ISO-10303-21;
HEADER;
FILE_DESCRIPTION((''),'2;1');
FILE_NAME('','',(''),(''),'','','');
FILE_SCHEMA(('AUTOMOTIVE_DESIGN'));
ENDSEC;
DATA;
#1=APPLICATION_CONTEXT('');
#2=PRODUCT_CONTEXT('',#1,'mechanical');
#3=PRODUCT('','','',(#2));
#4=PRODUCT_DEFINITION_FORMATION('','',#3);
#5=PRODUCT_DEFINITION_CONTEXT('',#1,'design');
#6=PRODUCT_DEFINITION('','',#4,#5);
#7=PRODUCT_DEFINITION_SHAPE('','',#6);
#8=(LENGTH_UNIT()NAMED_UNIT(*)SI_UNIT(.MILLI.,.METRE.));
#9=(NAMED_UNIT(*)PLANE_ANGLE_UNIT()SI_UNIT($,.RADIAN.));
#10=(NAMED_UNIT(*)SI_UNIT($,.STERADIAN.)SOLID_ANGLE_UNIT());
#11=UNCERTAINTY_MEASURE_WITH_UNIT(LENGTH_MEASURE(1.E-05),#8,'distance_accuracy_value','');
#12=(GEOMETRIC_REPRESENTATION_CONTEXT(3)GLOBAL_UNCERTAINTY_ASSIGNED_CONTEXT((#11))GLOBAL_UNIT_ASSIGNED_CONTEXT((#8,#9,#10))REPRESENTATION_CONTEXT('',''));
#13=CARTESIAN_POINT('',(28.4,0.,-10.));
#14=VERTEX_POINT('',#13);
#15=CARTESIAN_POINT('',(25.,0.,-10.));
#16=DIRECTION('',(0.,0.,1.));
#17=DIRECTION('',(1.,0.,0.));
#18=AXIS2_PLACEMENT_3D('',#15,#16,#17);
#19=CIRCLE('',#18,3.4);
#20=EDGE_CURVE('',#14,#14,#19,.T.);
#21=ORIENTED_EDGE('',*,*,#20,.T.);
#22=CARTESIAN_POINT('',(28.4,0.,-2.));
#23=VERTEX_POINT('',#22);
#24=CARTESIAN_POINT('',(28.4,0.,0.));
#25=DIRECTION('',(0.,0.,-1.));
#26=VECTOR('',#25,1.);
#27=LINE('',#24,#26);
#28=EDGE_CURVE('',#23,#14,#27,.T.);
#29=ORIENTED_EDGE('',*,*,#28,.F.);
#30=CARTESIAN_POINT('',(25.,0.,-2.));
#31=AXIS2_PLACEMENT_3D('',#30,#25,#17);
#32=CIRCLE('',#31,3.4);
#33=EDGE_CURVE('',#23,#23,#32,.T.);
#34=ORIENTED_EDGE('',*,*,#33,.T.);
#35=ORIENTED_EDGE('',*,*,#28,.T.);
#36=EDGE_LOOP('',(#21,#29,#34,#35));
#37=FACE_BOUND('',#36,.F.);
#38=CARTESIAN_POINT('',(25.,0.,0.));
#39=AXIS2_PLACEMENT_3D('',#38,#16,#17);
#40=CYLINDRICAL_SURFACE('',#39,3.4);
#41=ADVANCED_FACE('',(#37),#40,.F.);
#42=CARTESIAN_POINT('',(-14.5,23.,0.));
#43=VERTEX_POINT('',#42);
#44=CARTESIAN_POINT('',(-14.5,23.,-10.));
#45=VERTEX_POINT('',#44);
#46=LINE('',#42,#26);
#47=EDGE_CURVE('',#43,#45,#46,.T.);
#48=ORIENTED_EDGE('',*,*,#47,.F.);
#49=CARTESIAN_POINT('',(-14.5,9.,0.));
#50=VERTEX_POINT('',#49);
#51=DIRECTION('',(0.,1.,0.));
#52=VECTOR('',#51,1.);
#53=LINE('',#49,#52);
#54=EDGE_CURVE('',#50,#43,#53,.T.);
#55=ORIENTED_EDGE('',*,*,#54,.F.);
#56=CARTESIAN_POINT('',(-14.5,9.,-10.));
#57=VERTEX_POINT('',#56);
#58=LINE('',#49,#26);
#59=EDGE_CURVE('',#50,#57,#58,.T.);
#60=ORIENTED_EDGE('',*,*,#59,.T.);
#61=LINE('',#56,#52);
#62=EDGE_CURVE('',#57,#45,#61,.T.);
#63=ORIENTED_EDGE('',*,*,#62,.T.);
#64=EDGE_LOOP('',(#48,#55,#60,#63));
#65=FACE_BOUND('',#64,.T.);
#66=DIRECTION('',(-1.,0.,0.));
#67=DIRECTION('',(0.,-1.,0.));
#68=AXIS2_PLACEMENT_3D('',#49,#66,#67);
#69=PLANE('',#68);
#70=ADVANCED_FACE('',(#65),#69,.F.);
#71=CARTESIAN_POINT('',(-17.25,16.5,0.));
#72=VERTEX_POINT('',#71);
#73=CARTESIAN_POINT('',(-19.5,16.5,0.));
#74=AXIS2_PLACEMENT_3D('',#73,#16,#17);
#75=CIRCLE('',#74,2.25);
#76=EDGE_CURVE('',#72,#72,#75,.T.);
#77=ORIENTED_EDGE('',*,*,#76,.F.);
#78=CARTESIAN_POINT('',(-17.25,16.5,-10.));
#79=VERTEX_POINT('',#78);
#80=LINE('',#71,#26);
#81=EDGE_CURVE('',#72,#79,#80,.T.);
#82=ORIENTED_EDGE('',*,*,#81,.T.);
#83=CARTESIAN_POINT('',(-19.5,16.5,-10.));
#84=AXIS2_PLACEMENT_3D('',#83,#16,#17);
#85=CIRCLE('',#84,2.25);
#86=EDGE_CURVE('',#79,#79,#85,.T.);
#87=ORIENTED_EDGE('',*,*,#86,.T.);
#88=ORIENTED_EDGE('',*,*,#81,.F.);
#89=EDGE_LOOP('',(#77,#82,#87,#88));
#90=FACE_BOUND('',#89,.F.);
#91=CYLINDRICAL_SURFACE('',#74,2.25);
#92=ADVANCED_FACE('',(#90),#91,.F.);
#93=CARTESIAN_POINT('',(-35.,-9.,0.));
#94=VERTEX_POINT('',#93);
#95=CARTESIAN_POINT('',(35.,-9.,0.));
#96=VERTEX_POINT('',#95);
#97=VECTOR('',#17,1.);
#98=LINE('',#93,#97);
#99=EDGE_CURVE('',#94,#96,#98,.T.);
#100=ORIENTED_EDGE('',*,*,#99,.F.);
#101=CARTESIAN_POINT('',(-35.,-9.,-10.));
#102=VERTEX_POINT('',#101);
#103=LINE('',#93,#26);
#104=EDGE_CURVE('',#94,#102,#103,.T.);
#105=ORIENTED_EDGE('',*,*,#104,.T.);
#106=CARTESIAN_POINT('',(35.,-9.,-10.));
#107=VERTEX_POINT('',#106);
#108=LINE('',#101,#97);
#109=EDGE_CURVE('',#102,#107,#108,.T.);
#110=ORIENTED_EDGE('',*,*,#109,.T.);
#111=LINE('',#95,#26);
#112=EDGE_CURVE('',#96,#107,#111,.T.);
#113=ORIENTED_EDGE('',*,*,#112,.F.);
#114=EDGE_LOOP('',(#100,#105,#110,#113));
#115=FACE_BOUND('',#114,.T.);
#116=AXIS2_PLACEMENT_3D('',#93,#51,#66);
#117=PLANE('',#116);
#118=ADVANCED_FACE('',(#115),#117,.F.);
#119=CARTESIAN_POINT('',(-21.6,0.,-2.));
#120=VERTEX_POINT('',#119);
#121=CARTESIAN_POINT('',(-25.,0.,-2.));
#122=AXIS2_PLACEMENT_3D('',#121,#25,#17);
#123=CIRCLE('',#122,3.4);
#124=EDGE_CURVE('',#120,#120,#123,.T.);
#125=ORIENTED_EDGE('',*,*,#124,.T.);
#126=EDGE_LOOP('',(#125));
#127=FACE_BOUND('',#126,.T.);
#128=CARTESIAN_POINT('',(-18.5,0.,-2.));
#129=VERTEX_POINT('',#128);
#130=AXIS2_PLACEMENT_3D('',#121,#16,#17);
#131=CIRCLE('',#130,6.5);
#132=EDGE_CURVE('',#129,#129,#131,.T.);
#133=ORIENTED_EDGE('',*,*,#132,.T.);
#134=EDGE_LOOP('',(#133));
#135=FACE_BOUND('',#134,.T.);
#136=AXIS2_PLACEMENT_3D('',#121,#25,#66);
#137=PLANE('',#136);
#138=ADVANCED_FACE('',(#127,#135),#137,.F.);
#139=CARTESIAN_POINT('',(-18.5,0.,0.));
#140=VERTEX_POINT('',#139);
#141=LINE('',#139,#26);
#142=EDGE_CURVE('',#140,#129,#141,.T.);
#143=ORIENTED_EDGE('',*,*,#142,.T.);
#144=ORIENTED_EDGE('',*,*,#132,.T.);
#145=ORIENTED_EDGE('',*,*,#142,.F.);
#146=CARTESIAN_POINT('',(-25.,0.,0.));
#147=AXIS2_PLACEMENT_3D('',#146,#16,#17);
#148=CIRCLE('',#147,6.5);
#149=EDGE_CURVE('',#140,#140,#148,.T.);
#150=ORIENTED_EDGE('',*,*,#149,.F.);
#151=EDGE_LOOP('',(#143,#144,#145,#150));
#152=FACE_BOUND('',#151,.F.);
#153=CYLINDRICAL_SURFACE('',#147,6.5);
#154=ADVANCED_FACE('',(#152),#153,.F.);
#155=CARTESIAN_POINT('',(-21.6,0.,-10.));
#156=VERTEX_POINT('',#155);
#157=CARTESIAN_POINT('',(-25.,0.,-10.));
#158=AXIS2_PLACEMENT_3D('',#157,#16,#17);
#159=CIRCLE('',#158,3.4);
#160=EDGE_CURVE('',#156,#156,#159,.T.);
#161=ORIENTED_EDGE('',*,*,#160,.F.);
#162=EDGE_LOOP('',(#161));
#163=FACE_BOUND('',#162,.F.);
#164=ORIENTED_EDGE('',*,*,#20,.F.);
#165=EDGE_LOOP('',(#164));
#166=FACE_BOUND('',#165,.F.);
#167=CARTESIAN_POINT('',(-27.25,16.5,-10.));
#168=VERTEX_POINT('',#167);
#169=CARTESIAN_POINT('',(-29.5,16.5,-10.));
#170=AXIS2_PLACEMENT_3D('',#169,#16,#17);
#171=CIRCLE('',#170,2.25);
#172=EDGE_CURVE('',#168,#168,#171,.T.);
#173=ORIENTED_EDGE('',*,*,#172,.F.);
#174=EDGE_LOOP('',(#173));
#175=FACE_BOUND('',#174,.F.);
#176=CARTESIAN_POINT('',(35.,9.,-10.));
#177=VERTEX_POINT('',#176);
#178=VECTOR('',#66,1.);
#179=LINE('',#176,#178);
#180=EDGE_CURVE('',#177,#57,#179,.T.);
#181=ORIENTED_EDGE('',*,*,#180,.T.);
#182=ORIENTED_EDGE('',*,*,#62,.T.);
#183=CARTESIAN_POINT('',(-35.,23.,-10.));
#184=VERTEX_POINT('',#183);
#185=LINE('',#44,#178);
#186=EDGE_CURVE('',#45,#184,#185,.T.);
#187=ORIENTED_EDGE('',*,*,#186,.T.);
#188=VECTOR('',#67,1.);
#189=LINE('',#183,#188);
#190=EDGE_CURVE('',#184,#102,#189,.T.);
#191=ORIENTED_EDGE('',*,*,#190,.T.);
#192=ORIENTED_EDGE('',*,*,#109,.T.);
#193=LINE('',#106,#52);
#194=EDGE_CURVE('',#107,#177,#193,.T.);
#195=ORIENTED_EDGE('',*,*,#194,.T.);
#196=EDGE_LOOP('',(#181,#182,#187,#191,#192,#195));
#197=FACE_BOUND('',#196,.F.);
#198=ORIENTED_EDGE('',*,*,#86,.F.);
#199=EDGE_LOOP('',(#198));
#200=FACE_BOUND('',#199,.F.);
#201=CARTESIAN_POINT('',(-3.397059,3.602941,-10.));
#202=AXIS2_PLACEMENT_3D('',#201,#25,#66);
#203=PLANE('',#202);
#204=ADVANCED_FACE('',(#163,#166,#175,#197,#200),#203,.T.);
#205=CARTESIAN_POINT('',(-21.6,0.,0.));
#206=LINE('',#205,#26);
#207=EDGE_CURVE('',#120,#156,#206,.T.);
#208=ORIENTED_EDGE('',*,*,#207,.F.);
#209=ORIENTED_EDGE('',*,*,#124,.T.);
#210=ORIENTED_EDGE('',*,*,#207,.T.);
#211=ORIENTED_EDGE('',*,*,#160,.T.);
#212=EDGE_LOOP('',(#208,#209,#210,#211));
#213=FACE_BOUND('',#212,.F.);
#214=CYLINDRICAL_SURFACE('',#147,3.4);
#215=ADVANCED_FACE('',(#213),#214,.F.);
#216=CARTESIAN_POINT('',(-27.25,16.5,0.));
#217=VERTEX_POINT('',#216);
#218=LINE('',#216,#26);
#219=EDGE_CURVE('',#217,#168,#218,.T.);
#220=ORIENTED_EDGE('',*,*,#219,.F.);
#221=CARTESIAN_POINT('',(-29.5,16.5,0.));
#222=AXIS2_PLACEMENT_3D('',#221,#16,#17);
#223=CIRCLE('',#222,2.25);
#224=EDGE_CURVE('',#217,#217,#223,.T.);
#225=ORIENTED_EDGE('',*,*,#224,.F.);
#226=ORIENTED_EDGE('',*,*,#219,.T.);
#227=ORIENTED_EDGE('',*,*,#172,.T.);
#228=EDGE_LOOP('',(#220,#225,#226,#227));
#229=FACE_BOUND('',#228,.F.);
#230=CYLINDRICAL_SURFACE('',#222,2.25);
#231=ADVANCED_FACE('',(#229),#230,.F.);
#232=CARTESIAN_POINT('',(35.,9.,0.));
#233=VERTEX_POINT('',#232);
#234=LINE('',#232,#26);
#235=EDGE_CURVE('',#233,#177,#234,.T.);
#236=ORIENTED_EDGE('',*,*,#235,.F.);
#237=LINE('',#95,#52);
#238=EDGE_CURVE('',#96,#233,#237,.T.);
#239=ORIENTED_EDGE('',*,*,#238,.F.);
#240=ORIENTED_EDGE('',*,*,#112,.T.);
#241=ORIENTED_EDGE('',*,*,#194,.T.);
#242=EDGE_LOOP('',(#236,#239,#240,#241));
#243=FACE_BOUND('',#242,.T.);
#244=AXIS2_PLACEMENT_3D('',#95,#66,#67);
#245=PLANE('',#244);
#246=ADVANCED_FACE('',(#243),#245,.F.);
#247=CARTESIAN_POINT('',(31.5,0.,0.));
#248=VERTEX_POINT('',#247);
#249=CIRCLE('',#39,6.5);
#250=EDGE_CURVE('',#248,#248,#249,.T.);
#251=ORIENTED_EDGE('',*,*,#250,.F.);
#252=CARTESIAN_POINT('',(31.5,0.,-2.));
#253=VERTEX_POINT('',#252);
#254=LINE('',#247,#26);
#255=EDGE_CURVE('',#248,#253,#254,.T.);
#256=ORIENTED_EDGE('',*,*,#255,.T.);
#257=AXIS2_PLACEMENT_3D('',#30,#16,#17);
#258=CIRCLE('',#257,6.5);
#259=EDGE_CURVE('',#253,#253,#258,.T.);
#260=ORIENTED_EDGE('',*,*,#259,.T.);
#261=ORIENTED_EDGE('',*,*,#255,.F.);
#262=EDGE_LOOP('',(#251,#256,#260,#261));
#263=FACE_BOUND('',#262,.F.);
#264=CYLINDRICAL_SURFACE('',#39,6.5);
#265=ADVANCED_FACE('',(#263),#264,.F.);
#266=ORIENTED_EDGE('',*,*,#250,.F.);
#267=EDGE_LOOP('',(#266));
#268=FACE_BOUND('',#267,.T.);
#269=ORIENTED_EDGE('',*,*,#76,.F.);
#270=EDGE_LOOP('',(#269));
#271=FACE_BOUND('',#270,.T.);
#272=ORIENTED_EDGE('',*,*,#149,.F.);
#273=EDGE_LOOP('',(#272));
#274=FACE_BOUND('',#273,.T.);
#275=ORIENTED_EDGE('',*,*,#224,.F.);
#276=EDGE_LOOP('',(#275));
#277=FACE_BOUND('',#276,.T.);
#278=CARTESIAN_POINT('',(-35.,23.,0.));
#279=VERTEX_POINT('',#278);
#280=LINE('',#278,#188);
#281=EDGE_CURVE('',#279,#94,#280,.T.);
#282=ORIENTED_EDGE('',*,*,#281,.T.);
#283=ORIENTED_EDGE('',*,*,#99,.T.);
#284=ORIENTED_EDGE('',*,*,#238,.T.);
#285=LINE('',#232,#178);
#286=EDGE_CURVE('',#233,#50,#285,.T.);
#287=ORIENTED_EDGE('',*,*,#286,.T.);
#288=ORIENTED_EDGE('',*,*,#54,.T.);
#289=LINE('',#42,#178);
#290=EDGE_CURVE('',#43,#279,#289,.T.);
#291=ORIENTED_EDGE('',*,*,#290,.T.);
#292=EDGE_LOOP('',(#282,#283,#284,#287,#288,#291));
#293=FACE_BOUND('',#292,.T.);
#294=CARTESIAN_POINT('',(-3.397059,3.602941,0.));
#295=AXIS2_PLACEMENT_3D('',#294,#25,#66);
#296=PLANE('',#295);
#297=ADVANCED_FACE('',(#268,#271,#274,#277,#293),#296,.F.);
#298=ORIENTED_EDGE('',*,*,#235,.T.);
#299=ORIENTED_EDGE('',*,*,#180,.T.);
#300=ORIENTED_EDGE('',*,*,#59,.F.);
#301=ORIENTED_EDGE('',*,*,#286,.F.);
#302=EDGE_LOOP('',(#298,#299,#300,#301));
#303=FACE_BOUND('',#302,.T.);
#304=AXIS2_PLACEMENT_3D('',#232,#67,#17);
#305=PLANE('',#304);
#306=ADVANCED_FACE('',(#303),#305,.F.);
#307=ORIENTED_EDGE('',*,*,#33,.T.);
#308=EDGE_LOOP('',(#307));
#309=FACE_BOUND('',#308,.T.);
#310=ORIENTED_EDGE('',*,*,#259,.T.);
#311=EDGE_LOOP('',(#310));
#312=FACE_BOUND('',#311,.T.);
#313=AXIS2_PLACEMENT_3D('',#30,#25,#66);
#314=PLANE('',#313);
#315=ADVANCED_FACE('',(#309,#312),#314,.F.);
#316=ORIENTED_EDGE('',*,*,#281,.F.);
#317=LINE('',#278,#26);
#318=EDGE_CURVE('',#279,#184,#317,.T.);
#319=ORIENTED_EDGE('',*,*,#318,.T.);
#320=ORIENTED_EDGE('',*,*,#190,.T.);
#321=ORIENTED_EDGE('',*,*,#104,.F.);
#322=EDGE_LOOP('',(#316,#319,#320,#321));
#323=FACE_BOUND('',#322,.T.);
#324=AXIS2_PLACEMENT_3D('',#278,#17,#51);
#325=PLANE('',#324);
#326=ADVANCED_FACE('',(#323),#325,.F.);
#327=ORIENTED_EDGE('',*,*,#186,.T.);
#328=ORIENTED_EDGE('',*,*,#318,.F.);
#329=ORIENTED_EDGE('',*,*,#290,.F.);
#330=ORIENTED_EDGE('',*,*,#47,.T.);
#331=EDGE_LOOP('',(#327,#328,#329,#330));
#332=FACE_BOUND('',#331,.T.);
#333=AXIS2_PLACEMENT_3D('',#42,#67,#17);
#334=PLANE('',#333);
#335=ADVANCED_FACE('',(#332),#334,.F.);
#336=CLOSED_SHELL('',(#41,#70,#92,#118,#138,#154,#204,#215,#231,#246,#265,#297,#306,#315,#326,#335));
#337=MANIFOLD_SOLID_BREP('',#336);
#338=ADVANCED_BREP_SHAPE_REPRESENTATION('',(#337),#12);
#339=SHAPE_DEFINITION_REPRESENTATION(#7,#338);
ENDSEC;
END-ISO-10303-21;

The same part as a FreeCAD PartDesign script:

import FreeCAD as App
import Part
import Sketcher

V = App.Vector
Q = App.Units.Quantity


def add_polygon(sketch, points):
    """Adds a closed chain of lines whose ends are joined by coincident constraints."""
    first, n = sketch.GeometryCount, len(points)
    for a, b in zip(points, points[1:] + points[:1]):
        sketch.addGeometry(Part.LineSegment(App.Vector(*a, 0), App.Vector(*b, 0)), False)
    for i in range(n):
        sketch.addConstraint(Sketcher.Constraint("Coincident", first + i, 2, first + (i + 1) % n, 1))

doc = App.newDocument("Part")
body = doc.addObject("PartDesign::Body", "Body")

# Sketch on XY plane
sketch1 = doc.addObject("Sketcher::SketchObject", "Sketch")
body.addObject(sketch1)
sketch1.AttachmentSupport = (doc.XY_Plane, [""])
sketch1.MapMode = "FlatFace"
add_polygon(sketch1, [(-35, 23), (-35, -9), (35, -9), (35, 9), (-14.5, 9), (-14.5, 23)])  # lines 0-5
sketch1.addGeometry(Part.Circle(V(-25, 0, 0), V(0, 0, 1), 3.4), False)  # 6
sketch1.addGeometry(Part.Circle(V(25, 0, 0), V(0, 0, 1), 3.4), False)  # 7
sketch1.addGeometry(Part.Circle(V(-29.5, 16.5, 0), V(0, 0, 1), 2.2), False)  # 8
sketch1.addGeometry(Part.Circle(V(-19.5, 16.5, 0), V(0, 0, 1), 2.2), False)  # 9
sketch1.addConstraint([
    Sketcher.Constraint("Vertical", 0),
    Sketcher.Constraint("Horizontal", 1),
    Sketcher.Constraint("Vertical", 2),
    Sketcher.Constraint("Horizontal", 3),
    Sketcher.Constraint("Vertical", 4),
    Sketcher.Constraint("Horizontal", 5),
    Sketcher.Constraint("Equal", 6, 7),
    Sketcher.Constraint("Equal", 8, 9),
    Sketcher.Constraint("Symmetric", 6, 3, 7, 3, -1, 1),
    Sketcher.Constraint("Symmetric", 0, 2, 2, 2, -1, 1),
    Sketcher.Constraint("PointOnObject", 6, 3, -1),
    Sketcher.Constraint("Horizontal", 8, 3, 9, 3),
    Sketcher.Constraint("Diameter", 6, Q("6.8 mm")),
    Sketcher.Constraint("Diameter", 8, Q("4.5 mm")),
    Sketcher.Constraint("DistanceX", 1, 1, 1, 2, Q("70 mm")),
    Sketcher.Constraint("DistanceY", 0, 2, 0, 1, Q("32 mm")),
    Sketcher.Constraint("DistanceY", 2, 1, 2, 2, Q("18 mm")),
    Sketcher.Constraint("DistanceX", 3, 2, 3, 1, Q("49.5 mm")),
    Sketcher.Constraint("DistanceX", 6, 3, -1, 1, Q("25 mm")),
    Sketcher.Constraint("DistanceX", 8, 3, 9, 3, Q("10 mm")),
    Sketcher.Constraint("DistanceX", 9, 3, 3, 2, Q("5 mm")),
    Sketcher.Constraint("DistanceY", -1, 1, 8, 3, Q("16.5 mm")),
])
pad1 = doc.addObject("PartDesign::Pad", "Pad")
body.addObject(pad1)
pad1.Profile = sketch1
pad1.Length = 10

# Sketch on XY plane
sketch2 = doc.addObject("Sketcher::SketchObject", "Sketch001")
body.addObject(sketch2)
sketch2.AttachmentSupport = (doc.XY_Plane, [""])
sketch2.MapMode = "FlatFace"
sketch2.addGeometry([
    Part.Circle(V(-25, 0, 0), V(0, 0, 1), 6),
    Part.Circle(V(25, 0, 0), V(0, 0, 1), 6),
], False)
sketch2.addConstraint([
    Sketcher.Constraint("Equal", 0, 1),
    Sketcher.Constraint("Symmetric", 0, 3, 1, 3, -1, 1),
    Sketcher.Constraint("PointOnObject", 0, 3, -1),
    Sketcher.Constraint("Diameter", 0, Q("13 mm")),
    Sketcher.Constraint("DistanceX", 0, 3, -1, 1, Q("25 mm")),
])
pocket1 = doc.addObject("PartDesign::Pocket", "Pocket")
body.addObject(pocket1)
pocket1.Profile = sketch2
pocket1.Length = 2
pocket1.Reversed = True
body2 = doc.addObject("PartDesign::Body", "Body001")
doc.recompute()

mirroring = doc.addObject("Part::Mirroring", "Mirroring")
mirroring.Source = body
mirroring.Base = V(0, 0, 0)
mirroring.Normal = V(0, 0, 1)
body2.BaseFeature = mirroring
doc.recompute()
body.Visibility = False
mirroring.Visibility = False

doc.recompute()
